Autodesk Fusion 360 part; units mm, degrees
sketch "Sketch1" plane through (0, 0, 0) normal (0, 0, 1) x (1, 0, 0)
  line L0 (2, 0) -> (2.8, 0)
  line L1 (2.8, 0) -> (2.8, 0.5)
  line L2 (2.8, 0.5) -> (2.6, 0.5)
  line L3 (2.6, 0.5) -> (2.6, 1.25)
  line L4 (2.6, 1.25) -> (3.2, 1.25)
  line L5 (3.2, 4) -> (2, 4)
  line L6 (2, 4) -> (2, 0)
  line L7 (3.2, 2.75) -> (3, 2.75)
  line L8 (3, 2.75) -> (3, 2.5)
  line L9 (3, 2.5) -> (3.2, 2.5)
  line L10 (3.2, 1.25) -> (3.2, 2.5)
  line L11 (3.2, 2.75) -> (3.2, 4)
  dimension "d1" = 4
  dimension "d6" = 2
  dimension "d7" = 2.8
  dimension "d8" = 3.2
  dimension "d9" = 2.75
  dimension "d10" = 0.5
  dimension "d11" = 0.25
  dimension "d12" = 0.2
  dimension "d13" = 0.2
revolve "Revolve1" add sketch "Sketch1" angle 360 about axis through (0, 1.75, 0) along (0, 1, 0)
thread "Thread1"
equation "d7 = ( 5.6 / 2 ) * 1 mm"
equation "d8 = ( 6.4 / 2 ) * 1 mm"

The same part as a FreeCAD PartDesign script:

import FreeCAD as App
import Part
import Sketcher

doc = App.newDocument("Part")
body = doc.addObject("PartDesign::Body", "Body")

# Sketch on XY plane
sketch1 = body.newObject("Sketcher::SketchObject", "Sketch")
sketch1.AttachmentSupport = (doc.getObject("XY_Plane"), [""])
sketch1.MapMode = "FlatFace"
sketch1.addGeometry([
    Part.LineSegment(App.Vector(2, 4, 0), App.Vector(2, 0, 0)),  # 0
    Part.LineSegment(App.Vector(2, 0, 0), App.Vector(2.8, 0, 0)),  # 1
    Part.LineSegment(App.Vector(2.8, 0, 0), App.Vector(2.8, 0.5, 0)),  # 2
    Part.LineSegment(App.Vector(2.8, 0.5, 0), App.Vector(2.6, 0.5, 0)),  # 3
    Part.LineSegment(App.Vector(2.6, 0.5, 0), App.Vector(2.6, 1.25, 0)),  # 4
    Part.LineSegment(App.Vector(2.6, 1.25, 0), App.Vector(3.2, 1.25, 0)),  # 5
    Part.LineSegment(App.Vector(3.2, 1.25, 0), App.Vector(3.2, 2.5, 0)),  # 6
    Part.LineSegment(App.Vector(3.2, 2.5, 0), App.Vector(3, 2.5, 0)),  # 7
    Part.LineSegment(App.Vector(3, 2.5, 0), App.Vector(3, 2.75, 0)),  # 8
    Part.LineSegment(App.Vector(3, 2.75, 0), App.Vector(3.2, 2.75, 0)),  # 9
    Part.LineSegment(App.Vector(3.2, 2.75, 0), App.Vector(3.2, 4, 0)),  # 10
    Part.LineSegment(App.Vector(3.2, 4, 0), App.Vector(2, 4, 0)),  # 11
], False)
sketch1.addConstraint([
    Sketcher.Constraint("Coincident", 0, 2, 1, 1),
    Sketcher.Constraint("Coincident", 1, 2, 2, 1),
    Sketcher.Constraint("Coincident", 2, 2, 3, 1),
    Sketcher.Constraint("Coincident", 3, 2, 4, 1),
    Sketcher.Constraint("Coincident", 4, 2, 5, 1),
    Sketcher.Constraint("Coincident", 5, 2, 6, 1),
    Sketcher.Constraint("Coincident", 6, 2, 7, 1),
    Sketcher.Constraint("Coincident", 7, 2, 8, 1),
    Sketcher.Constraint("Coincident", 8, 2, 9, 1),
    Sketcher.Constraint("Coincident", 9, 2, 10, 1),
    Sketcher.Constraint("Coincident", 10, 2, 11, 1),
    Sketcher.Constraint("Coincident", 11, 2, 0, 1),
    Sketcher.Constraint("Vertical", 0),
    Sketcher.Constraint("Horizontal", 1),
    Sketcher.Constraint("Vertical", 2),
    Sketcher.Constraint("Horizontal", 3),
    Sketcher.Constraint("Vertical", 4),
    Sketcher.Constraint("Horizontal", 5),
    Sketcher.Constraint("Vertical", 6),
    Sketcher.Constraint("Horizontal", 7),
    Sketcher.Constraint("Vertical", 8),
    Sketcher.Constraint("Horizontal", 9),
    Sketcher.Constraint("Vertical", 10),
    Sketcher.Constraint("Horizontal", 11),
    Sketcher.Constraint("PointOnObject", 0, 2, -1),
    Sketcher.Constraint("Vertical", 6, 2, 9, 2),
    Sketcher.Constraint("Equal", 3, 7),
    Sketcher.Constraint("Equal", 6, 10),
    Sketcher.Constraint("DistanceY", 0, 2, 0, 1, 4.0),
    Sketcher.Constraint("DistanceX", 3, 2, 3, 1, 0.2),
    Sketcher.Constraint("DistanceY", 2, 1, 2, 2, 0.5),
    Sketcher.Constraint("DistanceX", -1, 1, 0, 2, 2.0),
    Sketcher.Constraint("DistanceY", 2, 2, 6, 2, 2.0),
    Sketcher.Constraint("DistanceY", 8, 1, 8, 2, 0.25),
    Sketcher.Constraint("DistanceX", -1, 1, 1, 2, 2.8),
    Sketcher.Constraint("DistanceX", -1, 1, 5, 2, 3.2),
])
revolution = body.newObject("PartDesign::Revolution", "Revolution")
revolution.Profile = sketch1
revolution.ReferenceAxis = (sketch1, ["V_Axis"])
revolution.Angle = 360

doc.recompute()
